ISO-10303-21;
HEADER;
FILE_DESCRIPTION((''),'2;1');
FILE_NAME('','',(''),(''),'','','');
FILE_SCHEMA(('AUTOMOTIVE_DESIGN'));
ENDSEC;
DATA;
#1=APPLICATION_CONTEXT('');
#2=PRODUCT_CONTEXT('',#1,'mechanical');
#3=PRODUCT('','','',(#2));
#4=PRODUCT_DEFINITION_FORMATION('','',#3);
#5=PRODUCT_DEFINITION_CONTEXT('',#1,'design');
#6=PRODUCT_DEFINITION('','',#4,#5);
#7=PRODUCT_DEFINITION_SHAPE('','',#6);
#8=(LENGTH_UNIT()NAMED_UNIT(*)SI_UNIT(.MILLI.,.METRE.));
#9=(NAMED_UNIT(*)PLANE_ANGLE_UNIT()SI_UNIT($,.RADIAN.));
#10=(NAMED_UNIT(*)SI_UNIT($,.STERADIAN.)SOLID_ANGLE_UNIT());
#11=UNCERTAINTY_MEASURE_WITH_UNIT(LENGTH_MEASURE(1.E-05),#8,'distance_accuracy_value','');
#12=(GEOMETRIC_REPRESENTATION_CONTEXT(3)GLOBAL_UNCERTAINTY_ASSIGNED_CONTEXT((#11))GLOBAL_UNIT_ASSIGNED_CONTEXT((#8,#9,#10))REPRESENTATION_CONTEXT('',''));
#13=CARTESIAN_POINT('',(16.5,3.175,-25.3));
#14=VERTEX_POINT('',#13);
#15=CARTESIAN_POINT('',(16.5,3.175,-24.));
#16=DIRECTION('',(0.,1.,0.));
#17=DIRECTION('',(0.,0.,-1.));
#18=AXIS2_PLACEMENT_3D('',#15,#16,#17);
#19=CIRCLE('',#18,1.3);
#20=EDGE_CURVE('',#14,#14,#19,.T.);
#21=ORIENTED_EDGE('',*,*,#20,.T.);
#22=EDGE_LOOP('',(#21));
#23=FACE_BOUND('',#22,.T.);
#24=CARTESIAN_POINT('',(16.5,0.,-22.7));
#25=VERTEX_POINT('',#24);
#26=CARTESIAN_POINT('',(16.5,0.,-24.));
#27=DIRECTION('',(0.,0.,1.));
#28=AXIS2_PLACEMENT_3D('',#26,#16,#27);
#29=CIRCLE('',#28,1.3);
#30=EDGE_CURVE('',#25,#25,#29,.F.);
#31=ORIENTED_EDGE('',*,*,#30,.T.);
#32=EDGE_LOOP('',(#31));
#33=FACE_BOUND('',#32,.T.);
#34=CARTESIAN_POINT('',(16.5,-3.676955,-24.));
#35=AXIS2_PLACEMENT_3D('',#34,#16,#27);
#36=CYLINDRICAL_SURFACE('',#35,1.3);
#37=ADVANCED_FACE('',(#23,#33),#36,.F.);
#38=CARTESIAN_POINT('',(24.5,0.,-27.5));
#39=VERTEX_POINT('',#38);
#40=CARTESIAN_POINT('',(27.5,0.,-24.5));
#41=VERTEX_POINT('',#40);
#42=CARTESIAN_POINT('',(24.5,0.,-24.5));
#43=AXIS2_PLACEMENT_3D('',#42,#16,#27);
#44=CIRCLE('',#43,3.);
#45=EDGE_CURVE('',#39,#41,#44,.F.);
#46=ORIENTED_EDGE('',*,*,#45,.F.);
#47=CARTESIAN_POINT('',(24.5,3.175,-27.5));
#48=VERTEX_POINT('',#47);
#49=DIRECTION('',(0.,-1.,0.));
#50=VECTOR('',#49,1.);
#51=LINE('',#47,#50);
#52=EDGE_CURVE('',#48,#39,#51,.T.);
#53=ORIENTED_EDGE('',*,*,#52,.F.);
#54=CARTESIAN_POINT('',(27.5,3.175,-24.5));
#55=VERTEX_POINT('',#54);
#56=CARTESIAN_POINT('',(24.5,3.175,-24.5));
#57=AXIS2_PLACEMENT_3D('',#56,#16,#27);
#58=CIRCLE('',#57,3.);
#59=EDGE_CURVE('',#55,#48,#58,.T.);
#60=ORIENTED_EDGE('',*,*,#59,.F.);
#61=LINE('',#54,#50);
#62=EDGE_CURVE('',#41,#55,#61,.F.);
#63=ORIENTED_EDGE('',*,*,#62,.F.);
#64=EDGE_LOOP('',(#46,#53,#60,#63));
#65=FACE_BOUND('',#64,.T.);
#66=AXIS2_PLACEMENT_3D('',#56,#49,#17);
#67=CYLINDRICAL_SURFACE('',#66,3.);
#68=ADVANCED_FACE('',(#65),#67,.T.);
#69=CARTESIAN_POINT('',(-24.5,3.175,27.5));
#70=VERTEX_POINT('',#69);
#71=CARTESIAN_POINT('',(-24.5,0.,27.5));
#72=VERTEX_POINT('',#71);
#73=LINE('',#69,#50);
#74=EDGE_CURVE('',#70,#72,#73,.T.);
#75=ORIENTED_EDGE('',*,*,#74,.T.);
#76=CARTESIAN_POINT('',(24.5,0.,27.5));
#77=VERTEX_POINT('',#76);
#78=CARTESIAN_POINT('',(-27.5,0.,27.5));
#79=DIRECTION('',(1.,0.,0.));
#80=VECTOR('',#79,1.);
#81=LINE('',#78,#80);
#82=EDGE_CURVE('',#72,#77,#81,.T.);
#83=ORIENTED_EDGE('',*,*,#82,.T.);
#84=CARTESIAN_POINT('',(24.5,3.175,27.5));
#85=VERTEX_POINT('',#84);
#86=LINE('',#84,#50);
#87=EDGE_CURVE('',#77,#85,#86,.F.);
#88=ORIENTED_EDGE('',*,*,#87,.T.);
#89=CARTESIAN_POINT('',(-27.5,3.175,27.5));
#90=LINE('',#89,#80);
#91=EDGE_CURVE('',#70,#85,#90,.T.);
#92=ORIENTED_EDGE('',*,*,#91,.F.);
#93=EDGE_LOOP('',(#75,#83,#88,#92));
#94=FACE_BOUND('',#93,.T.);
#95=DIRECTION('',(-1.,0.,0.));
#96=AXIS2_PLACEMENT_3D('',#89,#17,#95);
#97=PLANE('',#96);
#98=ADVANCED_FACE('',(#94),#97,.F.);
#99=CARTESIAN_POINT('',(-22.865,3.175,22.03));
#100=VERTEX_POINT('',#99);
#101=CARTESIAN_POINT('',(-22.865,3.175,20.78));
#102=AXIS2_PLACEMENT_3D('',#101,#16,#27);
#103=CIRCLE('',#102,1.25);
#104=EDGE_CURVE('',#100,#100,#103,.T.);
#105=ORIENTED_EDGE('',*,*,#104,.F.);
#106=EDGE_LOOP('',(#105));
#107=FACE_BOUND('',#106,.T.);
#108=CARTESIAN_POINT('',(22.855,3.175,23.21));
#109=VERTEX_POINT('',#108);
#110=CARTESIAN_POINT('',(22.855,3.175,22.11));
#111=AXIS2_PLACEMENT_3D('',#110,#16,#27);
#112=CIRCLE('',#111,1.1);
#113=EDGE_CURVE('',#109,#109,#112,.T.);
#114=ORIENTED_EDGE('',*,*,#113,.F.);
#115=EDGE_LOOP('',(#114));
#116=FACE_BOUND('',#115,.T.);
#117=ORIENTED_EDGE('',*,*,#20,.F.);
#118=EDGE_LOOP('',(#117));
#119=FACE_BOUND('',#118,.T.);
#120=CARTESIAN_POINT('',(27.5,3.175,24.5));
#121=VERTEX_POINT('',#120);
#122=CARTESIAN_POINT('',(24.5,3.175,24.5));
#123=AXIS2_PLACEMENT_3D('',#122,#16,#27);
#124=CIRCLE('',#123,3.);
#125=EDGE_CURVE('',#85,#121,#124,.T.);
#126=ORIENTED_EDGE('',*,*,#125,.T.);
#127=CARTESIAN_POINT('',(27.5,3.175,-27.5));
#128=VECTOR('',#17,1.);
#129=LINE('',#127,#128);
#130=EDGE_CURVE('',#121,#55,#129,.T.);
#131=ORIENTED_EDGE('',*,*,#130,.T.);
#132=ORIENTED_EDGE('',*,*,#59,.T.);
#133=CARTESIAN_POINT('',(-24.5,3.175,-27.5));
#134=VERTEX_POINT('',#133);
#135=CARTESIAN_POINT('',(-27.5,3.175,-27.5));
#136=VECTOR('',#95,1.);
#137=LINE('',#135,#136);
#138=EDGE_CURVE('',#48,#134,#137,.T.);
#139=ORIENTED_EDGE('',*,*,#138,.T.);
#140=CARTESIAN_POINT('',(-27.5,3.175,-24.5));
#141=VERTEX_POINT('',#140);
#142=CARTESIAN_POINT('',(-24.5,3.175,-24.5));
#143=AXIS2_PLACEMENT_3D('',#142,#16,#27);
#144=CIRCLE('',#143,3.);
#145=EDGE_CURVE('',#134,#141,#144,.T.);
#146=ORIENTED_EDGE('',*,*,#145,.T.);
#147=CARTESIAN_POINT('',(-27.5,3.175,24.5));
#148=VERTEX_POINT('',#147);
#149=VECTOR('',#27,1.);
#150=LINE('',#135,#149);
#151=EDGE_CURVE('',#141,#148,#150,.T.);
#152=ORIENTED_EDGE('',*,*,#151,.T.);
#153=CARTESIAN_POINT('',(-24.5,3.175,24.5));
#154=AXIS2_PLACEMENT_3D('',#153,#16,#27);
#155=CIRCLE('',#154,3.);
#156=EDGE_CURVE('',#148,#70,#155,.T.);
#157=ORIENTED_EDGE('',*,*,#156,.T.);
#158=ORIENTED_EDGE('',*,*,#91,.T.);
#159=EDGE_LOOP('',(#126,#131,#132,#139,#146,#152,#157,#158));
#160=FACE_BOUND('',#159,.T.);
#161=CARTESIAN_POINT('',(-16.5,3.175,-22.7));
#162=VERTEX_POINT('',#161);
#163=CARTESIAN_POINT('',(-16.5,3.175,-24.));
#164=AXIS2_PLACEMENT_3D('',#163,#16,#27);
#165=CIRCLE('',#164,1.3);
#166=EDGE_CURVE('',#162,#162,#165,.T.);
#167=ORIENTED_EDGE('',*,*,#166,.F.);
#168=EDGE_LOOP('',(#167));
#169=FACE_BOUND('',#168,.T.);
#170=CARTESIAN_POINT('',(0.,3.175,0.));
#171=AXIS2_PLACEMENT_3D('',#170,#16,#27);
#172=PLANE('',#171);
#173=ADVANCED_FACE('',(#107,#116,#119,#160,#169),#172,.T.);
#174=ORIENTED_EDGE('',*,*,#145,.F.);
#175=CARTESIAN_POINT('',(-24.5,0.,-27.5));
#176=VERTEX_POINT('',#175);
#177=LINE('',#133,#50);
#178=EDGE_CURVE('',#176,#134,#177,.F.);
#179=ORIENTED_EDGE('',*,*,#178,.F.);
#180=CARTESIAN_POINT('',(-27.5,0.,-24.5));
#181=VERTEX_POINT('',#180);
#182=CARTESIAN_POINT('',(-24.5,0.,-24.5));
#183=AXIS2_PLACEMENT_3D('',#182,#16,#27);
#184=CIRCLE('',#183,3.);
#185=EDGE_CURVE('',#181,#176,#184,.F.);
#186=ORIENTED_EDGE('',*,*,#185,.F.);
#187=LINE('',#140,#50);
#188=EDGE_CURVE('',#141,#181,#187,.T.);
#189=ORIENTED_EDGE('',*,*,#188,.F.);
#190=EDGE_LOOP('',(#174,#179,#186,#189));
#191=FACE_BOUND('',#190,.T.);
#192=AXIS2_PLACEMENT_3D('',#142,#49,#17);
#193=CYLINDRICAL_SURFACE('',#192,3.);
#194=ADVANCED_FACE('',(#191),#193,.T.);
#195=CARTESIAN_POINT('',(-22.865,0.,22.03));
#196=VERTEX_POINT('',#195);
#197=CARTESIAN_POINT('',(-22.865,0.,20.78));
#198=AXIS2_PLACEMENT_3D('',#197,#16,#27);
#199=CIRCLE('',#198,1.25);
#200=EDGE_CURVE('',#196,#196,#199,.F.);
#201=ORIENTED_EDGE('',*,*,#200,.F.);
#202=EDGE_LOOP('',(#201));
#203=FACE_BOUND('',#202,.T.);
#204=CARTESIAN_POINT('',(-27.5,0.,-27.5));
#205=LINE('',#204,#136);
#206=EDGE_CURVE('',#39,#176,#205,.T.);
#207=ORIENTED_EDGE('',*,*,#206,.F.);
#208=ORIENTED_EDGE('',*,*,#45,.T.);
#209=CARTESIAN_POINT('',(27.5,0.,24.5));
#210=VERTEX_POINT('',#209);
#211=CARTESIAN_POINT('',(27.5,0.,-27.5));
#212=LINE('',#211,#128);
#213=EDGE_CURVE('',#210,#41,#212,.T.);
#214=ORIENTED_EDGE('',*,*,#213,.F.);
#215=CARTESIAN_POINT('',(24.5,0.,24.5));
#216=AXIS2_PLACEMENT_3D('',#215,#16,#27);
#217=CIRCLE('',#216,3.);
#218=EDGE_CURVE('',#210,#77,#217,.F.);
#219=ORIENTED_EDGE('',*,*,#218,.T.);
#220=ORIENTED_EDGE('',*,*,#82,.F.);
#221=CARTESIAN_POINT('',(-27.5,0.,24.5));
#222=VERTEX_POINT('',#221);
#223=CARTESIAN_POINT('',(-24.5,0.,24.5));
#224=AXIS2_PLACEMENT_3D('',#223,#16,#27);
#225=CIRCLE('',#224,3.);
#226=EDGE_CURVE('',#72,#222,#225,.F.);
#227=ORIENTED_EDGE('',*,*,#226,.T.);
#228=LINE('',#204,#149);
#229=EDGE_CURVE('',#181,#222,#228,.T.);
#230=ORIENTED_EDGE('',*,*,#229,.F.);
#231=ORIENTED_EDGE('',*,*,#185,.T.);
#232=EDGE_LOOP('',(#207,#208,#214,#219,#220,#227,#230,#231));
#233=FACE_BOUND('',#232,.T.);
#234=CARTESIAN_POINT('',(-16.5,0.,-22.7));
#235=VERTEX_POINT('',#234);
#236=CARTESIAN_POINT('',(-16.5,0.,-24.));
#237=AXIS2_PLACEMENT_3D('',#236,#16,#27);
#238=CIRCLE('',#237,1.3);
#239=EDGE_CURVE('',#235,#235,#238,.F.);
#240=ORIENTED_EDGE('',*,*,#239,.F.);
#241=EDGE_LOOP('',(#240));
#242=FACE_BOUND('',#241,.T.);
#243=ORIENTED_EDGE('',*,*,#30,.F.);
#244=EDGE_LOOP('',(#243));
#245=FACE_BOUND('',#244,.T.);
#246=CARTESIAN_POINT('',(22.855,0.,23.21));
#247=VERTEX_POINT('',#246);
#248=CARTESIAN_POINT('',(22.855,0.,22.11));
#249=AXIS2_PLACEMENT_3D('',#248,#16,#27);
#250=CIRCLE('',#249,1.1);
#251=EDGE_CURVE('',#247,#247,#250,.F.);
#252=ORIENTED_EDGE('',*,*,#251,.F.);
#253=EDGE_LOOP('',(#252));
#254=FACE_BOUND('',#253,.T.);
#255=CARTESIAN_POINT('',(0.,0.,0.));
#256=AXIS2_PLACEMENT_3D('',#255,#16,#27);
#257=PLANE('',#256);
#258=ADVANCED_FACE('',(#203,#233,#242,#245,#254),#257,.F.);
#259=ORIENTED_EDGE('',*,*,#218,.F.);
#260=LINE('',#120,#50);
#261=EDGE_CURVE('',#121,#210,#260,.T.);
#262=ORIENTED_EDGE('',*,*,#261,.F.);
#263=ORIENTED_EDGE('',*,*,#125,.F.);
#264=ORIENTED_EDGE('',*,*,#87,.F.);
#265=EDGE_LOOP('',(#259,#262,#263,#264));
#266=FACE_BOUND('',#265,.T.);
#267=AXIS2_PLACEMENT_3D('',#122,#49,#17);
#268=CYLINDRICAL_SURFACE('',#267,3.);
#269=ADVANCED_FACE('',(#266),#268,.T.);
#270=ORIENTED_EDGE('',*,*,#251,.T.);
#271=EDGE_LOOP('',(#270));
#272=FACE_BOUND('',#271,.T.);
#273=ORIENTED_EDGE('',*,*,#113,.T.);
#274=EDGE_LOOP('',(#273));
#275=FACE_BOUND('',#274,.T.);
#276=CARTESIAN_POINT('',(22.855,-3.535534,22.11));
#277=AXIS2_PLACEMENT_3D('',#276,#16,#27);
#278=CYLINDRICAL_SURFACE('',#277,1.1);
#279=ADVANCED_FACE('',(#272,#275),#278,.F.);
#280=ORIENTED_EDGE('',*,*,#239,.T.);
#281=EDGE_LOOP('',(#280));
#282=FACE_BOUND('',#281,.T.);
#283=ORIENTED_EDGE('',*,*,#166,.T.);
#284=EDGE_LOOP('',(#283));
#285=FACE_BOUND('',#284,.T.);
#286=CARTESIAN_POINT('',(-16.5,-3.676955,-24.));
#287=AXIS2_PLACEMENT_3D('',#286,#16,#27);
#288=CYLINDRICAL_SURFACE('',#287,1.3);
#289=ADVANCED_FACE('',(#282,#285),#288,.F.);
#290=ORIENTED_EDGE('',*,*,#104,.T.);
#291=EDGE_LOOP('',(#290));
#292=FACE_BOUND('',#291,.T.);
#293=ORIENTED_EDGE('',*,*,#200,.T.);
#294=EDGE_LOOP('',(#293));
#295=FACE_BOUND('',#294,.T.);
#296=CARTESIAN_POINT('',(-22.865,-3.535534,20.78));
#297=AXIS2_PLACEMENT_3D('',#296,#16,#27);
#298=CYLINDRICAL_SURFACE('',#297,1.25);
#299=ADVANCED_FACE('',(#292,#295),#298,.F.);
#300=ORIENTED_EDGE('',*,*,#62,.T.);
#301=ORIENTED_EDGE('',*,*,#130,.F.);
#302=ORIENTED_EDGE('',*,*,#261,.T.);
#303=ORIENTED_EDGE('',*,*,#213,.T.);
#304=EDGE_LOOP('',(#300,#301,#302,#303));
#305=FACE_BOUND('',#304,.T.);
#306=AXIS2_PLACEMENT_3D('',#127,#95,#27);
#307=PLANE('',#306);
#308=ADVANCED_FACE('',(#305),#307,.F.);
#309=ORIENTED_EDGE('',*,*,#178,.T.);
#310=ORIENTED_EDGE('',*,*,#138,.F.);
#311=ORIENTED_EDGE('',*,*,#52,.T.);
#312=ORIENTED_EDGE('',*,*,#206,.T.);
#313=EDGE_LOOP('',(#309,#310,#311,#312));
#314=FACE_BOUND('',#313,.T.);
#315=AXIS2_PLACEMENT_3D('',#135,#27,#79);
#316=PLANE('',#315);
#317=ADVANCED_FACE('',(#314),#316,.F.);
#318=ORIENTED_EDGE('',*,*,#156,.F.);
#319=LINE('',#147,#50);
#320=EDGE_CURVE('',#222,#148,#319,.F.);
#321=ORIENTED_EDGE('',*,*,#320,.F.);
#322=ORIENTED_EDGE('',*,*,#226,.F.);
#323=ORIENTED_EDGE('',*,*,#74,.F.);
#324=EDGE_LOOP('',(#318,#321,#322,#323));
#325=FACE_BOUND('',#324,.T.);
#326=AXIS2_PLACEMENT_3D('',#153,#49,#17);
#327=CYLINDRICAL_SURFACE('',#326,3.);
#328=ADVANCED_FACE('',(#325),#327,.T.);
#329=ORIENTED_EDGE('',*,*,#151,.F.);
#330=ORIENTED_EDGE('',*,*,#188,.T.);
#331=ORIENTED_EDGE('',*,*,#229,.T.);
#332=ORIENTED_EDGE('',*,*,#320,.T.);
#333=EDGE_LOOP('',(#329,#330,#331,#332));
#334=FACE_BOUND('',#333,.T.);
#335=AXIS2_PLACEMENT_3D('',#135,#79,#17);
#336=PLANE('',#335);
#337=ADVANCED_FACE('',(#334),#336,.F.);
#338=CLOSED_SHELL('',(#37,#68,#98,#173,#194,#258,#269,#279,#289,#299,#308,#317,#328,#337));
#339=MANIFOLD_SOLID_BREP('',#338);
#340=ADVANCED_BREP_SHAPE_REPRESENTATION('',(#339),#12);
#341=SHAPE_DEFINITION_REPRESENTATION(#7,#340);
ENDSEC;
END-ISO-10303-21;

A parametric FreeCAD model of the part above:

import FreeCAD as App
import Part
import Sketcher
Q = App.Units.Quantity


def edges_at(feature, points):
    """Names of the edges that pass closest to the given points."""
    edges = feature.Shape.Edges
    near = lambda p: min(range(len(edges)), key=lambda i: edges[i].distToShape(Part.Vertex(*p))[0])
    return sorted({f"Edge{near(p) + 1}" for p in points})

doc = App.newDocument("Part")
body = doc.addObject("PartDesign::Body", "Body")

# Sketch on XZ plane
sketch1 = body.newObject("Sketcher::SketchObject", "Sketch")
sketch1.AttachmentSupport = (doc.getObject("XZ_Plane"), [""])
sketch1.MapMode = "FlatFace"
sketch1.addGeometry([
    Part.LineSegment(App.Vector(-28, -28, 0), App.Vector(-28, 28, 0)),
    Part.LineSegment(App.Vector(-28, 28, 0), App.Vector(28, 28, 0)),
    Part.LineSegment(App.Vector(28, 28, 0), App.Vector(28, -28, 0)),
    Part.LineSegment(App.Vector(28, -28, 0), App.Vector(-28, -28, 0)),
], False)
sketch1.addConstraint([
    Sketcher.Constraint("Coincident", 0, 2, 1, 1),
    Sketcher.Constraint("Coincident", 1, 2, 2, 1),
    Sketcher.Constraint("Coincident", 2, 2, 3, 1),
    Sketcher.Constraint("Coincident", 3, 2, 0, 1),
    Sketcher.Constraint("Vertical", 0),
    Sketcher.Constraint("Horizontal", 1),
    Sketcher.Constraint("Vertical", 2),
    Sketcher.Constraint("Horizontal", 3),
    Sketcher.Constraint("Symmetric", 0, 2, 2, 2, -1, 1),
    Sketcher.Constraint("Equal", 3, 0),
    Sketcher.Constraint("DistanceX", 1, 1, 1, 2, Q("55 mm")),
])
pad1 = body.newObject("PartDesign::Pad", "Pad")
pad1.Profile = sketch1
pad1.Length = 3.175
pad1.Reversed = True
doc.recompute()

fillet = body.newObject("PartDesign::Fillet", "Fillet")
fillet.Base = (pad1, edges_at(pad1, [
    (27.5, 1.587, 27.5),
    (-27.5, 1.587, 27.5),
    (-27.5, 1.587, -27.5),
    (27.5, 1.587, -27.5),
]))
fillet.Radius = 3

# Sketch on XZ plane
sketch2 = body.newObject("Sketcher::SketchObject", "Sketch001")
sketch2.AttachmentSupport = (doc.getObject("XZ_Plane"), [""])
sketch2.MapMode = "FlatFace"
sketch2.AttachmentOffset = App.Placement(App.Vector(0, 0, -3.175), App.Rotation())
sketch2.addGeometry([
    Part.Circle(App.Vector(22.9, 22.1, 0), App.Vector(0, 0, 1), 1.1),
    Part.Circle(App.Vector(-22.9, 20.8, 0), App.Vector(0, 0, 1), 1.2),
], False)
sketch2.addConstraint([
    Sketcher.Constraint("Diameter", 0, Q("2.2 mm")),
    Sketcher.Constraint("Diameter", 1, Q("2.5 mm")),
    Sketcher.Constraint("DistanceY", -1, 1, 0, 3, Q("22.11 mm")),
    Sketcher.Constraint("DistanceY", -1, 1, 1, 3, Q("20.78 mm")),
    Sketcher.Constraint("DistanceX", 1, 3, 0, 3, Q("45.72 mm")),
    Sketcher.Constraint("DistanceX", -1, 1, 0, 3, Q("22.855 mm")),
])
pocket1 = body.newObject("PartDesign::Pocket", "Pocket")
pocket1.Profile = sketch2
pocket1.Length = 3.175
pocket1.Reversed = True

# Sketch on XZ plane
sketch3 = body.newObject("Sketcher::SketchObject", "Sketch002")
sketch3.AttachmentSupport = (doc.getObject("XZ_Plane"), [""])
sketch3.MapMode = "FlatFace"
sketch3.AttachmentOffset = App.Placement(App.Vector(0, 0, -3.175), App.Rotation())
sketch3.addGeometry([
    Part.Circle(App.Vector(-16.5, -24, 0), App.Vector(0, 0, 1), 1.3),
    Part.Circle(App.Vector(16.5, -24, 0), App.Vector(0, 0, 1), 1.3),
], False)
sketch3.addConstraint([
    Sketcher.Constraint("Equal", 0, 1),
    Sketcher.Constraint("Symmetric", 0, 3, 1, 3, -2),
    Sketcher.Constraint("Diameter", 0, Q("2.6 mm")),
    Sketcher.Constraint("DistanceY", 0, 3, -1, 1, Q("24 mm")),
    Sketcher.Constraint("DistanceX", 0, 3, 1, 3, Q("33 mm")),
])
pocket2 = body.newObject("PartDesign::Pocket", "Pocket001")
pocket2.Profile = sketch3
pocket2.Length = 3.175
pocket2.Reversed = True

doc.recompute()
